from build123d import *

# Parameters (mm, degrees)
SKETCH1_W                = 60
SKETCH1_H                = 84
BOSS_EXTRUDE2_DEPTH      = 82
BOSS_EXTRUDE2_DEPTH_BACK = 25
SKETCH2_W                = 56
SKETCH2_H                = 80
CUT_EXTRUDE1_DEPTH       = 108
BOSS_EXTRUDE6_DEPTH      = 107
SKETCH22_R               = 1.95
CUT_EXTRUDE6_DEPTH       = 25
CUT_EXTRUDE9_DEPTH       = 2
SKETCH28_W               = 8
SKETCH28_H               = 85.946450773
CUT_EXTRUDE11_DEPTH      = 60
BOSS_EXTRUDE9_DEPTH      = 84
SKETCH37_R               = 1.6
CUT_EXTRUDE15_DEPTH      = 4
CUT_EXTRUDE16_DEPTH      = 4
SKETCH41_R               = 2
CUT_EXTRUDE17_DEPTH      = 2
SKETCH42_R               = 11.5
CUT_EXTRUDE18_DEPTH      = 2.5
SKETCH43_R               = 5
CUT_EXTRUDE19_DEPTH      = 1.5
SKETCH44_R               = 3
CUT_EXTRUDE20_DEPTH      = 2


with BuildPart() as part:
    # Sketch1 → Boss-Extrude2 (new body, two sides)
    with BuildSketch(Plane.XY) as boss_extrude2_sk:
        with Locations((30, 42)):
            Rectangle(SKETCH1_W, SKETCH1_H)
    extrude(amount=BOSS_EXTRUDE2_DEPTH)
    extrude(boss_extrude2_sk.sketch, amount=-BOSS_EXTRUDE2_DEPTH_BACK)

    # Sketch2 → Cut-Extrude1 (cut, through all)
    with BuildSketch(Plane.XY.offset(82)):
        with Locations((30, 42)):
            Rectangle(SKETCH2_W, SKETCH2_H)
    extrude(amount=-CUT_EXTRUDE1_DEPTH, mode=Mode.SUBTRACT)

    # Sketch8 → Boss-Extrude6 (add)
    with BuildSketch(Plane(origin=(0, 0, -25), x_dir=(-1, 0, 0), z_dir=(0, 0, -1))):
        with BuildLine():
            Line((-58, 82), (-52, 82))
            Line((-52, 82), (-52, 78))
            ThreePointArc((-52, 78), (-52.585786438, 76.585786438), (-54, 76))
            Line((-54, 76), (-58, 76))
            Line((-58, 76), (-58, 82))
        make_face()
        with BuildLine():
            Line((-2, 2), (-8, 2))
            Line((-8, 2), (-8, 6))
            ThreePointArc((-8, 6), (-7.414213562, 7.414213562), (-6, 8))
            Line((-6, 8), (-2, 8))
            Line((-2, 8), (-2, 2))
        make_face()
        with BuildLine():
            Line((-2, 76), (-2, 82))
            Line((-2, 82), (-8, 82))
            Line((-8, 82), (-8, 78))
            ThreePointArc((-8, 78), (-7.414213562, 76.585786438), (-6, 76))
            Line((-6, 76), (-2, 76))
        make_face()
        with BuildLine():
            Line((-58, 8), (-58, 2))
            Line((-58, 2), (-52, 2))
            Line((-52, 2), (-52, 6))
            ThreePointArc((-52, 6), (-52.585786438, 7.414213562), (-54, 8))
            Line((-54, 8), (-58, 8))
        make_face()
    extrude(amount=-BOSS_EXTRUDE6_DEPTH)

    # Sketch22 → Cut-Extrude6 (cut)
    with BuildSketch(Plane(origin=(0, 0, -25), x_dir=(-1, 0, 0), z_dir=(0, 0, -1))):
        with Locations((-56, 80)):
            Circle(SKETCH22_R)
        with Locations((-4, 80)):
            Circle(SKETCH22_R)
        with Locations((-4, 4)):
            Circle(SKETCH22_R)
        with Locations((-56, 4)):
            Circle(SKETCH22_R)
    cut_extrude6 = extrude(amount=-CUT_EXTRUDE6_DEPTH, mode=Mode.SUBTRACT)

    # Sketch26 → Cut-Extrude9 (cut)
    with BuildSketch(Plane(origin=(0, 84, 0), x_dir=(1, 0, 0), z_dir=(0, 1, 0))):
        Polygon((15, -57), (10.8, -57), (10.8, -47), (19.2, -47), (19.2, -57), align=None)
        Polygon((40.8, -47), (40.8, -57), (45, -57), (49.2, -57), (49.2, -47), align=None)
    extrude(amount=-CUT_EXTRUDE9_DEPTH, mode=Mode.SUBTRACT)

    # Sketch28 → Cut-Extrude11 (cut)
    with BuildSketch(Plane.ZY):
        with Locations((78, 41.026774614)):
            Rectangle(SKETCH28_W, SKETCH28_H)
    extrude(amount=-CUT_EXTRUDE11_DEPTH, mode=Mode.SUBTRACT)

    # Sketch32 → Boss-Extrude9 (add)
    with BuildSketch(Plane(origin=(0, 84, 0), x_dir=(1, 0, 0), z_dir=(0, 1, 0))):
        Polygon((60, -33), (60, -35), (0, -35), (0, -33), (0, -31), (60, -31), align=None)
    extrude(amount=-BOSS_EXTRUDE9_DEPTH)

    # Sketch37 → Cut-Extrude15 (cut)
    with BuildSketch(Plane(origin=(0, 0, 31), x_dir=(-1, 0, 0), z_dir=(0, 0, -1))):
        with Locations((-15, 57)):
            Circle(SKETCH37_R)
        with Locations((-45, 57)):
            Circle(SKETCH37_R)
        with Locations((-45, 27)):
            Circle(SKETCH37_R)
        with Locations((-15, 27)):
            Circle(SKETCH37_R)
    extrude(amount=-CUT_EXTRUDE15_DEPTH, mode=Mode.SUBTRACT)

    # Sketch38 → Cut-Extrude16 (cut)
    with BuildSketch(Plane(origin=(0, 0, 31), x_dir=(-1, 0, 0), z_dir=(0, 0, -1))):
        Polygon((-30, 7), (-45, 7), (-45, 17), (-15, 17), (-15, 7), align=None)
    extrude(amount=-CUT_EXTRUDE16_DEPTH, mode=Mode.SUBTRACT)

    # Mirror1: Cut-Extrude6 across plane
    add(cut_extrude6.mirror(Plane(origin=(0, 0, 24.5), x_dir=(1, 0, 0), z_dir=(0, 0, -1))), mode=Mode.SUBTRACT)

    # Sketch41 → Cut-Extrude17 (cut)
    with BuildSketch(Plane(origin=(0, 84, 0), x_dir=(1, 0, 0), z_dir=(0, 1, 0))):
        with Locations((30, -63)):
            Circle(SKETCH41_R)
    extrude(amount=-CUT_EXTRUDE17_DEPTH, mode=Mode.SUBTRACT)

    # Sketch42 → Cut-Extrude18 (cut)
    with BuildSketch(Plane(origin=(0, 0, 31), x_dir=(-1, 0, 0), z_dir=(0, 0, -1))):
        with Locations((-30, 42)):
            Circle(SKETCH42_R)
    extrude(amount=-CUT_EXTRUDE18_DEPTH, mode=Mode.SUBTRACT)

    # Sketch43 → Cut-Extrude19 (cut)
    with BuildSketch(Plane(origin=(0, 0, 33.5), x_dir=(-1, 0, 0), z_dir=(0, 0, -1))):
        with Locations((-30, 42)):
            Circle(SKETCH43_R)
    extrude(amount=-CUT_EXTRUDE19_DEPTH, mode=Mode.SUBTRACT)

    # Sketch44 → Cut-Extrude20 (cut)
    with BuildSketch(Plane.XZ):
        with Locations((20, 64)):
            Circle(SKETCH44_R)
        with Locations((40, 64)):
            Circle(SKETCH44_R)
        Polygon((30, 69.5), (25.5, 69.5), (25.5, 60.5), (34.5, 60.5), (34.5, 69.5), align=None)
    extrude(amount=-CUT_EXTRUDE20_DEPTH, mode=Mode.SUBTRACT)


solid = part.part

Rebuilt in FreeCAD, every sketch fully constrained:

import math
import FreeCAD as App
import Part
import Sketcher

V = App.Vector
Q = App.Units.Quantity


def add_polygon(sketch, points):
    """Adds a closed chain of lines whose ends are joined by coincident constraints."""
    first, n = sketch.GeometryCount, len(points)
    for a, b in zip(points, points[1:] + points[:1]):
        sketch.addGeometry(Part.LineSegment(App.Vector(*a, 0), App.Vector(*b, 0)), False)
    for i in range(n):
        sketch.addConstraint(Sketcher.Constraint("Coincident", first + i, 2, first + (i + 1) % n, 1))

doc = App.newDocument("Part")
body = doc.addObject("PartDesign::Body", "Body")

sketch1 = body.newObject("Sketcher::SketchObject", "Sketch")
sketch1.AttachmentSupport = (doc.getObject("XY_Plane"), [""])
sketch1.MapMode = "FlatFace"
add_polygon(sketch1, [(0, 84), (0, 0), (60, 0), (60, 84)])
sketch1.addConstraint([
    Sketcher.Constraint("Vertical", 0),
    Sketcher.Constraint("Horizontal", 1),
    Sketcher.Constraint("Vertical", 2),
    Sketcher.Constraint("Horizontal", 3),
    Sketcher.Constraint("Coincident", 0, 2, -1, 1),
    Sketcher.Constraint("DistanceX", 1, 1, 1, 2, Q("60 mm")),
    Sketcher.Constraint("DistanceY", 0, 2, 0, 1, Q("84 mm")),
])
pad1 = body.newObject("PartDesign::Pad", "Pad")
pad1.Profile = sketch1
pad1.Type = "TwoLengths"
pad1.Length = 82
pad1.Length2 = 25

sketch2 = body.newObject("Sketcher::SketchObject", "Sketch001")
sketch2.AttachmentSupport = (doc.getObject("XY_Plane"), [""])
sketch2.MapMode = "FlatFace"
sketch2.AttachmentOffset = App.Placement(V(0, 0, 82), App.Rotation())
add_polygon(sketch2, [(2, 82), (2, 2), (58, 2), (58, 82)])
sketch2.addConstraint([
    Sketcher.Constraint("Vertical", 0),
    Sketcher.Constraint("Horizontal", 1),
    Sketcher.Constraint("Vertical", 2),
    Sketcher.Constraint("Horizontal", 3),
    Sketcher.Constraint("DistanceX", 1, 1, 1, 2, Q("56 mm")),
    Sketcher.Constraint("DistanceY", 0, 2, 0, 1, Q("80 mm")),
    Sketcher.Constraint("DistanceX", -1, 1, 0, 2, Q("2 mm")),
    Sketcher.Constraint("DistanceY", -1, 1, 0, 2, Q("2 mm")),
])
pocket1 = body.newObject("PartDesign::Pocket", "Pocket")
pocket1.Profile = sketch2
pocket1.Type = "ThroughAll"

sketch3 = body.newObject("Sketcher::SketchObject", "Sketch002")
sketch3.AttachmentSupport = (doc.getObject("XY_Plane"), [""])
sketch3.MapMode = "FlatFace"
sketch3.AttachmentOffset = App.Placement(V(0, 0, -25), App.Rotation())
sketch3.addGeometry([
    Part.LineSegment(V(52, 82, 0), V(58, 82, 0)),
    Part.LineSegment(V(58, 82, 0), V(58, 76, 0)),
    Part.LineSegment(V(58, 76, 0), V(54, 76, 0)),
    Part.ArcOfCircle(Part.Circle(V(54, 78, 0), V(0, 0, 1), 2), math.radians(-180), math.radians(-90)),
    Part.LineSegment(V(52, 78, 0), V(52, 82, 0)),
    Part.LineSegment(V(8, 2, 0), V(2, 2, 0)),
    Part.LineSegment(V(2, 2, 0), V(2, 8, 0)),
    Part.LineSegment(V(2, 8, 0), V(6, 8, 0)),
    Part.ArcOfCircle(Part.Circle(V(6, 6, 0), V(0, 0, 1), 2), math.radians(0), math.radians(90)),
    Part.LineSegment(V(8, 6, 0), V(8, 2, 0)),
    Part.LineSegment(V(2, 76, 0), V(2, 82, 0)),
    Part.LineSegment(V(2, 82, 0), V(8, 82, 0)),
    Part.LineSegment(V(8, 82, 0), V(8, 78, 0)),
    Part.ArcOfCircle(Part.Circle(V(6, 78, 0), V(0, 0, 1), 2), math.radians(-90), math.radians(0)),
    Part.LineSegment(V(6, 76, 0), V(2, 76, 0)),
    Part.LineSegment(V(58, 8, 0), V(58, 2, 0)),
    Part.LineSegment(V(58, 2, 0), V(52, 2, 0)),
    Part.LineSegment(V(52, 2, 0), V(52, 6, 0)),
    Part.ArcOfCircle(Part.Circle(V(54, 6, 0), V(0, 0, 1), 2), math.radians(90), math.radians(180)),
    Part.LineSegment(V(54, 8, 0), V(58, 8, 0)),
], False)
sketch3.addConstraint([
    Sketcher.Constraint("Coincident", 0, 2, 1, 1),
    Sketcher.Constraint("Coincident", 1, 2, 2, 1),
    Sketcher.Constraint("Tangent", 2, 2, 3, 2),
    Sketcher.Constraint("Tangent", 3, 1, 4, 1),
    Sketcher.Constraint("Coincident", 4, 2, 0, 1),
    Sketcher.Constraint("Coincident", 5, 2, 6, 1),
    Sketcher.Constraint("Coincident", 6, 2, 7, 1),
    Sketcher.Constraint("Tangent", 7, 2, 8, 2),
    Sketcher.Constraint("Tangent", 8, 1, 9, 1),
    Sketcher.Constraint("Coincident", 9, 2, 5, 1),
    Sketcher.Constraint("Coincident", 10, 2, 11, 1),
    Sketcher.Constraint("Coincident", 11, 2, 12, 1),
    Sketcher.Constraint("Tangent", 12, 2, 13, 2),
    Sketcher.Constraint("Tangent", 13, 1, 14, 1),
    Sketcher.Constraint("Coincident", 14, 2, 10, 1),
    Sketcher.Constraint("Coincident", 15, 2, 16, 1),
    Sketcher.Constraint("Coincident", 16, 2, 17, 1),
    Sketcher.Constraint("Tangent", 17, 2, 18, 2),
    Sketcher.Constraint("Tangent", 18, 1, 19, 1),
    Sketcher.Constraint("Coincident", 19, 2, 15, 1),
    Sketcher.Constraint("Horizontal", 0),
    Sketcher.Constraint("Vertical", 1),
    Sketcher.Constraint("Horizontal", 2),
    Sketcher.Constraint("Vertical", 4),
    Sketcher.Constraint("Horizontal", 5),
    Sketcher.Constraint("Vertical", 6),
    Sketcher.Constraint("Horizontal", 7),
    Sketcher.Constraint("Vertical", 9),
    Sketcher.Constraint("Vertical", 10),
    Sketcher.Constraint("Horizontal", 11),
    Sketcher.Constraint("Vertical", 12),
    Sketcher.Constraint("Horizontal", 14),
    Sketcher.Constraint("Vertical", 15),
    Sketcher.Constraint("Horizontal", 16),
    Sketcher.Constraint("Vertical", 17),
    Sketcher.Constraint("Horizontal", 19),
    Sketcher.Constraint("Equal", 3, 8),
    Sketcher.Constraint("Equal", 8, 13),
    Sketcher.Constraint("Equal", 13, 18),
    Sketcher.Constraint("Horizontal", 3, 3, 13, 3),
    Sketcher.Constraint("Horizontal", 8, 3, 18, 3),
    Sketcher.Constraint("Horizontal", 4, 2, 10, 2),
    Sketcher.Constraint("Horizontal", 9, 2, 15, 2),
    Sketcher.Constraint("Vertical", 8, 3, 13, 3),
    Sketcher.Constraint("Vertical", 3, 3, 18, 3),
    Sketcher.Constraint("Vertical", 6, 2, 10, 2),
    Sketcher.Constraint("Vertical", 1, 2, 15, 2),
    Sketcher.Constraint("Equal", 0, 5),
    Sketcher.Constraint("Equal", 16, 1),
    Sketcher.Constraint("Equal", 1, 6),
    Sketcher.Constraint("Radius", 3, Q("2 mm")),
    Sketcher.Constraint("DistanceX", 0, 1, 0, 2, Q("6 mm")),
    Sketcher.Constraint("DistanceX", -1, 1, 3, 3, Q("54 mm")),
    Sketcher.Constraint("DistanceY", -1, 1, 3, 3, Q("78 mm")),
    Sketcher.Constraint("DistanceX", -1, 1, 8, 3, Q("6 mm")),
    Sketcher.Constraint("DistanceY", -1, 1, 8, 3, Q("6 mm")),
])
pad2 = body.newObject("PartDesign::Pad", "Pad001")
pad2.Profile = sketch3
pad2.Length = 107

sketch4 = body.newObject("Sketcher::SketchObject", "Sketch003")
sketch4.AttachmentSupport = (doc.getObject("XY_Plane"), [""])
sketch4.MapMode = "FlatFace"
sketch4.AttachmentOffset = App.Placement(V(0, 0, -25), App.Rotation())
sketch4.addGeometry([
    Part.Circle(V(56, 80, 0), V(0, 0, 1), 1.95),
    Part.Circle(V(4, 80, 0), V(0, 0, 1), 1.95),
    Part.Circle(V(4, 4, 0), V(0, 0, 1), 1.95),
    Part.Circle(V(56, 4, 0), V(0, 0, 1), 1.95),
], False)
sketch4.addConstraint([
    Sketcher.Constraint("Equal", 0, 1),
    Sketcher.Constraint("Equal", 1, 2),
    Sketcher.Constraint("Equal", 2, 3),
    Sketcher.Constraint("Horizontal", 0, 3, 1, 3),
    Sketcher.Constraint("Horizontal", 2, 3, 3, 3),
    Sketcher.Constraint("Vertical", 1, 3, 2, 3),
    Sketcher.Constraint("Vertical", 0, 3, 3, 3),
    Sketcher.Constraint("Diameter", 0, Q("3.9 mm")),
    Sketcher.Constraint("DistanceX", -1, 1, 0, 3, Q("56 mm")),
    Sketcher.Constraint("DistanceY", -1, 1, 0, 3, Q("80 mm")),
    Sketcher.Constraint("DistanceX", -1, 1, 1, 3, Q("4 mm")),
    Sketcher.Constraint("DistanceY", -1, 1, 2, 3, Q("4 mm")),
])
pocket2 = body.newObject("PartDesign::Pocket", "Pocket001")
pocket2.Profile = sketch4
pocket2.Length = 25
pocket2.Reversed = True

sketch5 = body.newObject("Sketcher::SketchObject", "Sketch004")
sketch5.AttachmentSupport = (doc.getObject("XZ_Plane"), [""])
sketch5.MapMode = "FlatFace"
sketch5.AttachmentOffset = App.Placement(V(0, 0, -84), App.Rotation())
add_polygon(sketch5, [(10.8, 57), (19.2, 57), (19.2, 47), (10.8, 47)])
add_polygon(sketch5, [(40.8, 47), (40.8, 57), (49.2, 57), (49.2, 47)])
sketch5.addConstraint([
    Sketcher.Constraint("Horizontal", 0),
    Sketcher.Constraint("Vertical", 1),
    Sketcher.Constraint("Horizontal", 2),
    Sketcher.Constraint("Vertical", 3),
    Sketcher.Constraint("Vertical", 4),
    Sketcher.Constraint("Horizontal", 5),
    Sketcher.Constraint("Vertical", 6),
    Sketcher.Constraint("Horizontal", 7),
    Sketcher.Constraint("Horizontal", 3, 2, 4, 2),
    Sketcher.Constraint("Horizontal", 2, 2, 6, 2),
    Sketcher.Constraint("Equal", 2, 5),
    Sketcher.Constraint("DistanceY", 1, 2, 1, 1, Q("10 mm")),
    Sketcher.Constraint("DistanceX", 0, 1, 0, 2, Q("8.4 mm")),
    Sketcher.Constraint("DistanceY", -1, 1, 0, 2, Q("57 mm")),
    Sketcher.Constraint("DistanceX", 3, 2, 4, 2, Q("30 mm")),
    Sketcher.Constraint("DistanceX", -1, 1, 0, 2, Q("19.2 mm")),
])
pocket3 = body.newObject("PartDesign::Pocket", "Pocket002")
pocket3.Profile = sketch5
pocket3.Length = 2
pocket3.Reversed = True

sketch6 = body.newObject("Sketcher::SketchObject", "Sketch005")
sketch6.AttachmentSupport = (doc.getObject("YZ_Plane"), [""])
sketch6.MapMode = "FlatFace"
add_polygon(sketch6, [(84, 74), (-1.946451, 74), (-1.946451, 82), (84, 82)])
sketch6.addConstraint([
    Sketcher.Constraint("Horizontal", 0),
    Sketcher.Constraint("Vertical", 1),
    Sketcher.Constraint("Horizontal", 2),
    Sketcher.Constraint("Vertical", 3),
    Sketcher.Constraint("DistanceY", 1, 1, 1, 2, Q("8 mm")),
    Sketcher.Constraint("DistanceY", -1, 1, 0, 2, Q("74 mm")),
    Sketcher.Constraint("DistanceX", -1, 1, 2, 2, Q("84 mm")),
    Sketcher.Constraint("DistanceX", 0, 2, 0, 1, Q("85.946451 mm")),
])
pocket4 = body.newObject("PartDesign::Pocket", "Pocket003")
pocket4.Profile = sketch6
pocket4.Length = 60
pocket4.Reversed = True

sketch7 = body.newObject("Sketcher::SketchObject", "Sketch006")
sketch7.AttachmentSupport = (doc.getObject("XZ_Plane"), [""])
sketch7.MapMode = "FlatFace"
sketch7.AttachmentOffset = App.Placement(V(0, 0, -84), App.Rotation())
add_polygon(sketch7, [(60, 35), (60, 31), (0, 31), (0, 35)])
sketch7.addConstraint([
    Sketcher.Constraint("Vertical", 0),
    Sketcher.Constraint("Horizontal", 1),
    Sketcher.Constraint("Vertical", 2),
    Sketcher.Constraint("Horizontal", 3),
    Sketcher.Constraint("PointOnObject", 1, 2, -2),
    Sketcher.Constraint("DistanceX", 1, 2, 1, 1, Q("60 mm")),
    Sketcher.Constraint("DistanceY", 0, 2, 0, 1, Q("4 mm")),
    Sketcher.Constraint("DistanceY", -1, 1, 0, 2, Q("31 mm")),
])
pad3 = body.newObject("PartDesign::Pad", "Pad002")
pad3.Profile = sketch7
pad3.Length = 84

sketch8 = body.newObject("Sketcher::SketchObject", "Sketch007")
sketch8.AttachmentSupport = (doc.getObject("XY_Plane"), [""])
sketch8.MapMode = "FlatFace"
sketch8.AttachmentOffset = App.Placement(V(0, 0, 31), App.Rotation())
sketch8.addGeometry([
    Part.Circle(V(15, 57, 0), V(0, 0, 1), 1.6),
    Part.Circle(V(45, 57, 0), V(0, 0, 1), 1.6),
    Part.Circle(V(45, 27, 0), V(0, 0, 1), 1.6),
    Part.Circle(V(15, 27, 0), V(0, 0, 1), 1.6),
], False)
sketch8.addConstraint([
    Sketcher.Constraint("Equal", 0, 1),
    Sketcher.Constraint("Equal", 1, 2),
    Sketcher.Constraint("Equal", 2, 3),
    Sketcher.Constraint("Horizontal", 0, 3, 1, 3),
    Sketcher.Constraint("Horizontal", 2, 3, 3, 3),
    Sketcher.Constraint("Vertical", 1, 3, 2, 3),
    Sketcher.Constraint("Vertical", 0, 3, 3, 3),
    Sketcher.Constraint("Diameter", 0, Q("3.2 mm")),
    Sketcher.Constraint("DistanceX", -1, 1, 0, 3, Q("15 mm")),
    Sketcher.Constraint("DistanceY", -1, 1, 0, 3, Q("57 mm")),
    Sketcher.Constraint("DistanceX", -1, 1, 1, 3, Q("45 mm")),
    Sketcher.Constraint("DistanceY", -1, 1, 2, 3, Q("27 mm")),
])
pocket5 = body.newObject("PartDesign::Pocket", "Pocket004")
pocket5.Profile = sketch8
pocket5.Length = 4
pocket5.Reversed = True

sketch9 = body.newObject("Sketcher::SketchObject", "Sketch008")
sketch9.AttachmentSupport = (doc.getObject("XY_Plane"), [""])
sketch9.MapMode = "FlatFace"
sketch9.AttachmentOffset = App.Placement(V(0, 0, 31), App.Rotation())
add_polygon(sketch9, [(45, 7), (15, 7), (15, 17), (45, 17)])
sketch9.addConstraint([
    Sketcher.Constraint("Horizontal", 0),
    Sketcher.Constraint("Vertical", 1),
    Sketcher.Constraint("Horizontal", 2),
    Sketcher.Constraint("Vertical", 3),
    Sketcher.Constraint("DistanceX", 0, 2, 0, 1, Q("30 mm")),
    Sketcher.Constraint("DistanceY", 1, 1, 1, 2, Q("10 mm")),
    Sketcher.Constraint("DistanceX", -1, 1, 0, 2, Q("15 mm")),
    Sketcher.Constraint("DistanceY", -1, 1, 0, 2, Q("7 mm")),
])
pocket6 = body.newObject("PartDesign::Pocket", "Pocket005")
pocket6.Profile = sketch9
pocket6.Length = 4
pocket6.Reversed = True
doc.recompute()

datumplane = body.newObject("PartDesign::Plane", "DatumPlane")
datumplane.AttachmentSupport = (doc.getObject("XY_Plane"), [""])
datumplane.MapMode = "FlatFace"
datumplane.AttachmentOffset = App.Placement(V(0, 0, 24.5), App.Rotation())
mirrored = body.newObject("PartDesign::Mirrored", "Mirrored")
mirrored.Originals = [pocket2]
mirrored.MirrorPlane = (datumplane, [""])
body.Tip = mirrored

sketch10 = body.newObject("Sketcher::SketchObject", "Sketch009")
sketch10.AttachmentSupport = (doc.getObject("XZ_Plane"), [""])
sketch10.MapMode = "FlatFace"
sketch10.AttachmentOffset = App.Placement(V(0, 0, -84), App.Rotation())
sketch10.addGeometry(Part.Circle(V(30, 63, 0), V(0, 0, 1), 2), False)
sketch10.addConstraint([
    Sketcher.Constraint("Diameter", 0, Q("4 mm")),
    Sketcher.Constraint("DistanceX", -1, 1, 0, 3, Q("30 mm")),
    Sketcher.Constraint("DistanceY", -1, 1, 0, 3, Q("63 mm")),
])
pocket7 = body.newObject("PartDesign::Pocket", "Pocket006")
pocket7.Profile = sketch10
pocket7.Length = 2
pocket7.Reversed = True

sketch11 = body.newObject("Sketcher::SketchObject", "Sketch010")
sketch11.AttachmentSupport = (doc.getObject("XY_Plane"), [""])
sketch11.MapMode = "FlatFace"
sketch11.AttachmentOffset = App.Placement(V(0, 0, 31), App.Rotation())
sketch11.addGeometry(Part.Circle(V(30, 42, 0), V(0, 0, 1), 11.5), False)
sketch11.addConstraint([
    Sketcher.Constraint("Diameter", 0, Q("23 mm")),
    Sketcher.Constraint("DistanceX", -1, 1, 0, 3, Q("30 mm")),
    Sketcher.Constraint("DistanceY", -1, 1, 0, 3, Q("42 mm")),
])
pocket8 = body.newObject("PartDesign::Pocket", "Pocket007")
pocket8.Profile = sketch11
pocket8.Length = 2.5
pocket8.Reversed = True

sketch12 = body.newObject("Sketcher::SketchObject", "Sketch011")
sketch12.AttachmentSupport = (doc.getObject("XY_Plane"), [""])
sketch12.MapMode = "FlatFace"
sketch12.AttachmentOffset = App.Placement(V(0, 0, 33.5), App.Rotation())
sketch12.addGeometry(Part.Circle(V(30, 42, 0), V(0, 0, 1), 5), False)
sketch12.addConstraint([
    Sketcher.Constraint("Diameter", 0, Q("10 mm")),
    Sketcher.Constraint("DistanceX", -1, 1, 0, 3, Q("30 mm")),
    Sketcher.Constraint("DistanceY", -1, 1, 0, 3, Q("42 mm")),
])
pocket9 = body.newObject("PartDesign::Pocket", "Pocket008")
pocket9.Profile = sketch12
pocket9.Length = 1.5
pocket9.Reversed = True

sketch13 = body.newObject("Sketcher::SketchObject", "Sketch012")
sketch13.AttachmentSupport = (doc.getObject("XZ_Plane"), [""])
sketch13.MapMode = "FlatFace"
sketch13.addGeometry(Part.Circle(V(20, 64, 0), V(0, 0, 1), 3), False)
sketch13.addGeometry(Part.Circle(V(40, 64, 0), V(0, 0, 1), 3), False)
add_polygon(sketch13, [(25.5, 69.5), (25.5, 60.5), (34.5, 60.5), (34.5, 69.5)])
sketch13.addConstraint([
    Sketcher.Constraint("Vertical", 2),
    Sketcher.Constraint("Horizontal", 3),
    Sketcher.Constraint("Vertical", 4),
    Sketcher.Constraint("Horizontal", 5),
    Sketcher.Constraint("Equal", 0, 1),
    Sketcher.Constraint("Horizontal", 0, 3, 1, 3),
    Sketcher.Constraint("Equal", 5, 2),
    Sketcher.Constraint("Diameter", 0, Q("6 mm")),
    Sketcher.Constraint("DistanceX", 3, 1, 3, 2, Q("9 mm")),
    Sketcher.Constraint("DistanceX", -1, 1, 0, 3, Q("20 mm")),
    Sketcher.Constraint("DistanceY", -1, 1, 0, 3, Q("64 mm")),
    Sketcher.Constraint("DistanceX", -1, 1, 1, 3, Q("40 mm")),
    Sketcher.Constraint("DistanceX", -1, 1, 2, 2, Q("25.5 mm")),
    Sketcher.Constraint("DistanceY", -1, 1, 2, 2, Q("60.5 mm")),
])
pocket10 = body.newObject("PartDesign::Pocket", "Pocket009")
pocket10.Profile = sketch13
pocket10.Length = 2

doc.recompute()
